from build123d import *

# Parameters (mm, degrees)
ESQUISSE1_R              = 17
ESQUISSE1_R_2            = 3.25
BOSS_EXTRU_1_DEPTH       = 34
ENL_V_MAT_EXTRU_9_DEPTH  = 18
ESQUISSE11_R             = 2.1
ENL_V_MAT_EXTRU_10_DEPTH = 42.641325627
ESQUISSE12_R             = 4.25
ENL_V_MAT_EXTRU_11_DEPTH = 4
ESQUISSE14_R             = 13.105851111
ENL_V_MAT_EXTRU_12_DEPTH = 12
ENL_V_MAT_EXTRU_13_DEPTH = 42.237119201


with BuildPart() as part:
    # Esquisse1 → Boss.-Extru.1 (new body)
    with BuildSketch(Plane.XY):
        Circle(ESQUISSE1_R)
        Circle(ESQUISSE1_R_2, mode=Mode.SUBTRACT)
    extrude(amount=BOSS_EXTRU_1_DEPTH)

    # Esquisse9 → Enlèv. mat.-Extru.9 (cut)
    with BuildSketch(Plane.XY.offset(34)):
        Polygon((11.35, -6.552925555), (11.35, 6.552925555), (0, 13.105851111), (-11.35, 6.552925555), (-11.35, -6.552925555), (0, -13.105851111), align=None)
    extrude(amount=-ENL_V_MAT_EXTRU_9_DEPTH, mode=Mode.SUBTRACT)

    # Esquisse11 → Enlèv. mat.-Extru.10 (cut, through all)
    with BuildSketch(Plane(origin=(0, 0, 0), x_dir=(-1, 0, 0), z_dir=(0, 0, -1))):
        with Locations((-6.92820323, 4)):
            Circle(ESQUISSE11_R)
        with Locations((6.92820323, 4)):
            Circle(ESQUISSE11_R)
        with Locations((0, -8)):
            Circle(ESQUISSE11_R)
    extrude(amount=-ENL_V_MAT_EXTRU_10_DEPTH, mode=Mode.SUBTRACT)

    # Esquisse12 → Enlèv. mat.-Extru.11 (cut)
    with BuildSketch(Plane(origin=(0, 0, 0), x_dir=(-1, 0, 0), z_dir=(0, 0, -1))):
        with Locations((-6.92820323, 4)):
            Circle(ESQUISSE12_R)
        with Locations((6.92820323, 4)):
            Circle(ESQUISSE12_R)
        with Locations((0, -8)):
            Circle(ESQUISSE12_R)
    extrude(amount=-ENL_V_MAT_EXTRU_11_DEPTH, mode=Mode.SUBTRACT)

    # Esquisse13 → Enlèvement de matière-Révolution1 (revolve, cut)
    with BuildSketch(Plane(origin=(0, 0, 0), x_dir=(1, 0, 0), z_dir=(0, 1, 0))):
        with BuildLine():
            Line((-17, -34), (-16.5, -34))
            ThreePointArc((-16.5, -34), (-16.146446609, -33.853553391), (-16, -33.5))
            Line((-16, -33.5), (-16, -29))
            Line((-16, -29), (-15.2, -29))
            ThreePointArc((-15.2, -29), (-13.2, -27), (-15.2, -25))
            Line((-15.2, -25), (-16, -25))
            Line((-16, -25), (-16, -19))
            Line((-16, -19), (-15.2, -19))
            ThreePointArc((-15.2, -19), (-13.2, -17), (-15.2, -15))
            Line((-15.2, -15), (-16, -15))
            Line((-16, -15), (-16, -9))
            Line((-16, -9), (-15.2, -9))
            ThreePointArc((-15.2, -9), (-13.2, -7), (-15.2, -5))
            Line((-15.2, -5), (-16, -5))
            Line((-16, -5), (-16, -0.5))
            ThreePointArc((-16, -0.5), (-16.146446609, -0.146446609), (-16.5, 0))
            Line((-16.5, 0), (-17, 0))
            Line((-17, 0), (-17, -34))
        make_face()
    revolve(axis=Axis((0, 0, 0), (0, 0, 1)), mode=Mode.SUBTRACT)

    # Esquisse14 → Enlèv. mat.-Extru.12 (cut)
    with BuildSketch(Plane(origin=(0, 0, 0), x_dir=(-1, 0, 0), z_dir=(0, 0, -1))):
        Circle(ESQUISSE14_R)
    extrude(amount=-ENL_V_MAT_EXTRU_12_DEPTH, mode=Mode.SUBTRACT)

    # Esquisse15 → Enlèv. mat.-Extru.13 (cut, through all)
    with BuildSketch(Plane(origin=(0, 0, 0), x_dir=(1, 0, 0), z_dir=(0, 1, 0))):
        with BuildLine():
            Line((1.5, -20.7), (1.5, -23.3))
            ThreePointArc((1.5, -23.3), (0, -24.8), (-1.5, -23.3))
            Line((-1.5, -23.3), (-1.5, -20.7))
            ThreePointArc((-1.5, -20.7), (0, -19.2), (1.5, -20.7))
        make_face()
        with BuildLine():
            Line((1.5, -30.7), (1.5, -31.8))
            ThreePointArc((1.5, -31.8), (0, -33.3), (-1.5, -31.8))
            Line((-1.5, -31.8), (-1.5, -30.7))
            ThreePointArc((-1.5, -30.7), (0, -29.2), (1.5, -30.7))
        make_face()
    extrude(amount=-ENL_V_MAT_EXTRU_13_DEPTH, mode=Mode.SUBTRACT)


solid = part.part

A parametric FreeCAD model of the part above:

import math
import FreeCAD as App
import Part
import Sketcher

V = App.Vector
Q = App.Units.Quantity

doc = App.newDocument("Part")
body = doc.addObject("PartDesign::Body", "Body")

sketch1 = body.newObject("Sketcher::SketchObject", "Sketch")
sketch1.AttachmentSupport = (doc.getObject("XY_Plane"), [""])
sketch1.MapMode = "FlatFace"
sketch1.addGeometry([
    Part.Circle(V(0, 0, 0), V(0, 0, 1), 17),
    Part.Circle(V(0, 0, 0), V(0, 0, 1), 3.25),
], False)
sketch1.addConstraint([
    Sketcher.Constraint("Coincident", 0, 3, -1, 1),
    Sketcher.Constraint("Coincident", 1, 3, -1, 1),
    Sketcher.Constraint("Diameter", 0, 34.0),
    Sketcher.Constraint("Diameter", 1, 6.5),
])
pad1 = body.newObject("PartDesign::Pad", "Pad")
pad1.Profile = sketch1
pad1.Length = 34

sketch2 = body.newObject("Sketcher::SketchObject", "Sketch001")
sketch2.AttachmentSupport = (doc.getObject("XY_Plane"), [""])
sketch2.MapMode = "FlatFace"
sketch2.AttachmentOffset = App.Placement(V(0, 0, 34), App.Rotation())
sketch2.addGeometry([
    Part.LineSegment(V(11.35, -6.552926, 0), V(11.35, 6.552926, 0)),
    Part.LineSegment(V(11.35, 6.552926, 0), V(0, 13.105851, 0)),
    Part.LineSegment(V(0, 13.105851, 0), V(-11.35, 6.552926, 0)),
    Part.LineSegment(V(-11.35, 6.552926, 0), V(-11.35, -6.552926, 0)),
    Part.LineSegment(V(-11.35, -6.552926, 0), V(0, -13.105851, 0)),
    Part.LineSegment(V(0, -13.105851, 0), V(11.35, -6.552926, 0)),
], False)
sketch2.addConstraint([
    Sketcher.Constraint("Coincident", 0, 2, 1, 1),
    Sketcher.Constraint("Coincident", 1, 2, 2, 1),
    Sketcher.Constraint("Coincident", 2, 2, 3, 1),
    Sketcher.Constraint("Coincident", 3, 2, 4, 1),
    Sketcher.Constraint("Coincident", 4, 2, 5, 1),
    Sketcher.Constraint("Coincident", 5, 2, 0, 1),
    Sketcher.Constraint("Vertical", 0),
    Sketcher.Constraint("Vertical", 3),
    Sketcher.Constraint("Symmetric", 0, 2, 3, 2, -1, 1),
    Sketcher.Constraint("Symmetric", 1, 2, 4, 2, -1, 1),
    Sketcher.Constraint("PointOnObject", 1, 2, -2),
    Sketcher.Constraint("Parallel", 2, 5),
    Sketcher.Constraint("Horizontal", 0, 2, 2, 2),
    Sketcher.Constraint("Angle", 1, Q("150 deg")),
    Sketcher.Constraint("DistanceX", 2, 2, 0, 2, 22.7),
    Sketcher.Constraint("DistanceY", 0, 1, 0, 2, 13.105851),
])
pocket1 = body.newObject("PartDesign::Pocket", "Pocket")
pocket1.Profile = sketch2
pocket1.Length = 18

sketch3 = body.newObject("Sketcher::SketchObject", "Sketch002")
sketch3.AttachmentSupport = (doc.getObject("XY_Plane"), [""])
sketch3.MapMode = "FlatFace"
sketch3.addGeometry([
    Part.Circle(V(6.928203, 4, 0), V(0, 0, 1), 2.1),
    Part.Circle(V(-6.928203, 4, 0), V(0, 0, 1), 2.1),
    Part.Circle(V(0, -8, 0), V(0, 0, 1), 2.1),
], False)
sketch3.addConstraint([
    Sketcher.Constraint("Equal", 0, 1),
    Sketcher.Constraint("Equal", 1, 2),
    Sketcher.Constraint("Symmetric", 0, 3, 1, 3, -2),
    Sketcher.Constraint("PointOnObject", 2, 3, -2),
    Sketcher.Constraint("Diameter", 0, 4.2),
    Sketcher.Constraint("DistanceY", -1, 1, 0, 3, 4.0),
    Sketcher.Constraint("DistanceY", 2, 3, -1, 1, 8.0),
    Sketcher.Constraint("DistanceX", -1, 1, 0, 3, 6.928203),
])
pocket2 = body.newObject("PartDesign::Pocket", "Pocket001")
pocket2.Profile = sketch3
pocket2.Type = "ThroughAll"
pocket2.Reversed = True

sketch4 = body.newObject("Sketcher::SketchObject", "Sketch003")
sketch4.AttachmentSupport = (doc.getObject("XY_Plane"), [""])
sketch4.MapMode = "FlatFace"
sketch4.addGeometry([
    Part.Circle(V(6.928203, 4, 0), V(0, 0, 1), 4.25),
    Part.Circle(V(-6.928203, 4, 0), V(0, 0, 1), 4.25),
    Part.Circle(V(0, -8, 0), V(0, 0, 1), 4.25),
], False)
sketch4.addConstraint([
    Sketcher.Constraint("Equal", 0, 1),
    Sketcher.Constraint("Equal", 1, 2),
    Sketcher.Constraint("Symmetric", 0, 3, 1, 3, -2),
    Sketcher.Constraint("PointOnObject", 2, 3, -2),
    Sketcher.Constraint("Diameter", 0, 8.5),
    Sketcher.Constraint("DistanceY", -1, 1, 0, 3, 4.0),
    Sketcher.Constraint("DistanceY", 2, 3, -1, 1, 8.0),
    Sketcher.Constraint("DistanceX", -1, 1, 0, 3, 6.928203),
])
pocket3 = body.newObject("PartDesign::Pocket", "Pocket002")
pocket3.Profile = sketch4
pocket3.Length = 4
pocket3.Reversed = True

sketch5 = body.newObject("Sketcher::SketchObject", "Sketch004")
sketch5.AttachmentSupport = (doc.getObject("XZ_Plane"), [""])
sketch5.MapMode = "FlatFace"
sketch5.addGeometry([
    Part.LineSegment(V(-17, 34, 0), V(-16.5, 34, 0)),
    Part.ArcOfCircle(Part.Circle(V(-16.5, 33.5, 0), V(0, 0, 1), 0.5), math.radians(0), math.radians(90)),
    Part.LineSegment(V(-16, 33.5, 0), V(-16, 29, 0)),
    Part.LineSegment(V(-16, 29, 0), V(-15.2, 29, 0)),
    Part.ArcOfCircle(Part.Circle(V(-15.2, 27, 0), V(0, 0, 1), 2), math.radians(-90), math.radians(90)),
    Part.LineSegment(V(-15.2, 25, 0), V(-16, 25, 0)),
    Part.LineSegment(V(-16, 25, 0), V(-16, 19, 0)),
    Part.LineSegment(V(-16, 19, 0), V(-15.2, 19, 0)),
    Part.ArcOfCircle(Part.Circle(V(-15.2, 17, 0), V(0, 0, 1), 2), math.radians(-90), math.radians(90)),
    Part.LineSegment(V(-15.2, 15, 0), V(-16, 15, 0)),
    Part.LineSegment(V(-16, 15, 0), V(-16, 9, 0)),
    Part.LineSegment(V(-16, 9, 0), V(-15.2, 9, 0)),
    Part.ArcOfCircle(Part.Circle(V(-15.2, 7, 0), V(0, 0, 1), 2), math.radians(-90), math.radians(90)),
    Part.LineSegment(V(-15.2, 5, 0), V(-16, 5, 0)),
    Part.LineSegment(V(-16, 5, 0), V(-16, 0.5, 0)),
    Part.ArcOfCircle(Part.Circle(V(-16.5, 0.5, 0), V(0, 0, 1), 0.5), math.radians(-90), math.radians(0)),
    Part.LineSegment(V(-16.5, 0, 0), V(-17, 0, 0)),
    Part.LineSegment(V(-17, 0, 0), V(-17, 34, 0)),
], False)
sketch5.addConstraint([
    Sketcher.Constraint("Tangent", 0, 2, 1, 2),
    Sketcher.Constraint("Tangent", 1, 1, 2, 1),
    Sketcher.Constraint("Coincident", 2, 2, 3, 1),
    Sketcher.Constraint("Tangent", 3, 2, 4, 2),
    Sketcher.Constraint("Tangent", 4, 1, 5, 1),
    Sketcher.Constraint("Coincident", 5, 2, 6, 1),
    Sketcher.Constraint("Coincident", 6, 2, 7, 1),
    Sketcher.Constraint("Tangent", 7, 2, 8, 2),
    Sketcher.Constraint("Tangent", 8, 1, 9, 1),
    Sketcher.Constraint("Coincident", 9, 2, 10, 1),
    Sketcher.Constraint("Coincident", 10, 2, 11, 1),
    Sketcher.Constraint("Tangent", 11, 2, 12, 2),
    Sketcher.Constraint("Tangent", 12, 1, 13, 1),
    Sketcher.Constraint("Coincident", 13, 2, 14, 1),
    Sketcher.Constraint("Tangent", 14, 2, 15, 2),
    Sketcher.Constraint("Tangent", 15, 1, 16, 1),
    Sketcher.Constraint("Coincident", 16, 2, 17, 1),
    Sketcher.Constraint("Coincident", 17, 2, 0, 1),
    Sketcher.Constraint("Horizontal", 0),
    Sketcher.Constraint("Vertical", 2),
    Sketcher.Constraint("Horizontal", 3),
    Sketcher.Constraint("Horizontal", 5),
    Sketcher.Constraint("Vertical", 6),
    Sketcher.Constraint("Horizontal", 7),
    Sketcher.Constraint("Horizontal", 9),
    Sketcher.Constraint("Vertical", 10),
    Sketcher.Constraint("Horizontal", 11),
    Sketcher.Constraint("Horizontal", 13),
    Sketcher.Constraint("Vertical", 14),
    Sketcher.Constraint("Horizontal", 16),
    Sketcher.Constraint("Vertical", 17),
    Sketcher.Constraint("Equal", 4, 8),
    Sketcher.Constraint("Equal", 8, 12),
    Sketcher.Constraint("Equal", 1, 15),
    Sketcher.Constraint("PointOnObject", 15, 1, -1),
    Sketcher.Constraint("Vertical", 4, 3, 8, 3),
    Sketcher.Constraint("Vertical", 8, 3, 12, 3),
    Sketcher.Constraint("Vertical", 1, 3, 15, 3),
    Sketcher.Constraint("Vertical", 2, 2, 5, 2),
    Sketcher.Constraint("Vertical", 6, 2, 9, 2),
    Sketcher.Constraint("Equal", 6, 10),
    Sketcher.Constraint("Equal", 2, 14),
    Sketcher.Constraint("Radius", 4, 2.0),
    Sketcher.Constraint("Radius", 1, 0.5),
    Sketcher.Constraint("DistanceY", 6, 2, 6, 1, 6.0),
    Sketcher.Constraint("DistanceY", 17, 1, 17, 2, 34.0),
    Sketcher.Constraint("DistanceX", 0, 1, 0, 2, 0.5),
    Sketcher.Constraint("DistanceX", 3, 1, 3, 2, 0.8),
    Sketcher.Constraint("DistanceX", 1, 1, -1, 1, 16.0),
])
groove = body.newObject("PartDesign::Groove", "Groove")
groove.Profile = sketch5
groove.ReferenceAxis = (sketch5, ["V_Axis"])
groove.Angle = 360

sketch6 = body.newObject("Sketcher::SketchObject", "Sketch005")
sketch6.AttachmentSupport = (doc.getObject("XY_Plane"), [""])
sketch6.MapMode = "FlatFace"
sketch6.addGeometry(Part.Circle(V(0, 0, 0), V(0, 0, 1), 13.105851), False)
sketch6.addConstraint([
    Sketcher.Constraint("Coincident", 0, 3, -1, 1),
    Sketcher.Constraint("Diameter", 0, 26.211702),
])
pocket4 = body.newObject("PartDesign::Pocket", "Pocket003")
pocket4.Profile = sketch6
pocket4.Length = 12
pocket4.Reversed = True

sketch7 = body.newObject("Sketcher::SketchObject", "Sketch006")
sketch7.AttachmentSupport = (doc.getObject("XZ_Plane"), [""])
sketch7.MapMode = "FlatFace"
sketch7.addGeometry([
    Part.LineSegment(V(1.5, 23.3, 0), V(1.5, 20.7, 0)),
    Part.ArcOfCircle(Part.Circle(V(0, 20.7, 0), V(0, 0, 1), 1.5), math.radians(180), math.radians(360)),
    Part.LineSegment(V(-1.5, 20.7, 0), V(-1.5, 23.3, 0)),
    Part.ArcOfCircle(Part.Circle(V(0, 23.3, 0), V(0, 0, 1), 1.5), math.radians(0), math.radians(180)),
    Part.LineSegment(V(1.5, 31.8, 0), V(1.5, 30.7, 0)),
    Part.ArcOfCircle(Part.Circle(V(0, 30.7, 0), V(0, 0, 1), 1.5), math.radians(180), math.radians(360)),
    Part.LineSegment(V(-1.5, 30.7, 0), V(-1.5, 31.8, 0)),
    Part.ArcOfCircle(Part.Circle(V(0, 31.8, 0), V(0, 0, 1), 1.5), math.radians(0), math.radians(180)),
], False)
sketch7.addConstraint([
    Sketcher.Constraint("Tangent", 0, 2, 1, 2),
    Sketcher.Constraint("Tangent", 1, 1, 2, 1),
    Sketcher.Constraint("Tangent", 2, 2, 3, 2),
    Sketcher.Constraint("Tangent", 3, 1, 0, 1),
    Sketcher.Constraint("Tangent", 4, 2, 5, 2),
    Sketcher.Constraint("Tangent", 5, 1, 6, 1),
    Sketcher.Constraint("Tangent", 6, 2, 7, 2),
    Sketcher.Constraint("Tangent", 7, 1, 4, 1),
    Sketcher.Constraint("Vertical", 0),
    Sketcher.Constraint("Vertical", 2),
    Sketcher.Constraint("Vertical", 4),
    Sketcher.Constraint("Vertical", 6),
    Sketcher.Constraint("Equal", 3, 5),
    Sketcher.Constraint("PointOnObject", 1, 3, -2),
    Sketcher.Constraint("PointOnObject", 5, 3, -2),
    Sketcher.Constraint("Radius", 1, 1.5),
    Sketcher.Constraint("DistanceY", 0, 2, 0, 1, 2.6),
    Sketcher.Constraint("DistanceY", 4, 2, 4, 1, 1.1),
    Sketcher.Constraint("DistanceY", 1, 3, 5, 3, 10.0),
    Sketcher.Constraint("DistanceY", -1, 1, 1, 3, 20.7),
])
pocket5 = body.newObject("PartDesign::Pocket", "Pocket004")
pocket5.Profile = sketch7
pocket5.Type = "ThroughAll"
pocket5.Reversed = True

doc.recompute()
